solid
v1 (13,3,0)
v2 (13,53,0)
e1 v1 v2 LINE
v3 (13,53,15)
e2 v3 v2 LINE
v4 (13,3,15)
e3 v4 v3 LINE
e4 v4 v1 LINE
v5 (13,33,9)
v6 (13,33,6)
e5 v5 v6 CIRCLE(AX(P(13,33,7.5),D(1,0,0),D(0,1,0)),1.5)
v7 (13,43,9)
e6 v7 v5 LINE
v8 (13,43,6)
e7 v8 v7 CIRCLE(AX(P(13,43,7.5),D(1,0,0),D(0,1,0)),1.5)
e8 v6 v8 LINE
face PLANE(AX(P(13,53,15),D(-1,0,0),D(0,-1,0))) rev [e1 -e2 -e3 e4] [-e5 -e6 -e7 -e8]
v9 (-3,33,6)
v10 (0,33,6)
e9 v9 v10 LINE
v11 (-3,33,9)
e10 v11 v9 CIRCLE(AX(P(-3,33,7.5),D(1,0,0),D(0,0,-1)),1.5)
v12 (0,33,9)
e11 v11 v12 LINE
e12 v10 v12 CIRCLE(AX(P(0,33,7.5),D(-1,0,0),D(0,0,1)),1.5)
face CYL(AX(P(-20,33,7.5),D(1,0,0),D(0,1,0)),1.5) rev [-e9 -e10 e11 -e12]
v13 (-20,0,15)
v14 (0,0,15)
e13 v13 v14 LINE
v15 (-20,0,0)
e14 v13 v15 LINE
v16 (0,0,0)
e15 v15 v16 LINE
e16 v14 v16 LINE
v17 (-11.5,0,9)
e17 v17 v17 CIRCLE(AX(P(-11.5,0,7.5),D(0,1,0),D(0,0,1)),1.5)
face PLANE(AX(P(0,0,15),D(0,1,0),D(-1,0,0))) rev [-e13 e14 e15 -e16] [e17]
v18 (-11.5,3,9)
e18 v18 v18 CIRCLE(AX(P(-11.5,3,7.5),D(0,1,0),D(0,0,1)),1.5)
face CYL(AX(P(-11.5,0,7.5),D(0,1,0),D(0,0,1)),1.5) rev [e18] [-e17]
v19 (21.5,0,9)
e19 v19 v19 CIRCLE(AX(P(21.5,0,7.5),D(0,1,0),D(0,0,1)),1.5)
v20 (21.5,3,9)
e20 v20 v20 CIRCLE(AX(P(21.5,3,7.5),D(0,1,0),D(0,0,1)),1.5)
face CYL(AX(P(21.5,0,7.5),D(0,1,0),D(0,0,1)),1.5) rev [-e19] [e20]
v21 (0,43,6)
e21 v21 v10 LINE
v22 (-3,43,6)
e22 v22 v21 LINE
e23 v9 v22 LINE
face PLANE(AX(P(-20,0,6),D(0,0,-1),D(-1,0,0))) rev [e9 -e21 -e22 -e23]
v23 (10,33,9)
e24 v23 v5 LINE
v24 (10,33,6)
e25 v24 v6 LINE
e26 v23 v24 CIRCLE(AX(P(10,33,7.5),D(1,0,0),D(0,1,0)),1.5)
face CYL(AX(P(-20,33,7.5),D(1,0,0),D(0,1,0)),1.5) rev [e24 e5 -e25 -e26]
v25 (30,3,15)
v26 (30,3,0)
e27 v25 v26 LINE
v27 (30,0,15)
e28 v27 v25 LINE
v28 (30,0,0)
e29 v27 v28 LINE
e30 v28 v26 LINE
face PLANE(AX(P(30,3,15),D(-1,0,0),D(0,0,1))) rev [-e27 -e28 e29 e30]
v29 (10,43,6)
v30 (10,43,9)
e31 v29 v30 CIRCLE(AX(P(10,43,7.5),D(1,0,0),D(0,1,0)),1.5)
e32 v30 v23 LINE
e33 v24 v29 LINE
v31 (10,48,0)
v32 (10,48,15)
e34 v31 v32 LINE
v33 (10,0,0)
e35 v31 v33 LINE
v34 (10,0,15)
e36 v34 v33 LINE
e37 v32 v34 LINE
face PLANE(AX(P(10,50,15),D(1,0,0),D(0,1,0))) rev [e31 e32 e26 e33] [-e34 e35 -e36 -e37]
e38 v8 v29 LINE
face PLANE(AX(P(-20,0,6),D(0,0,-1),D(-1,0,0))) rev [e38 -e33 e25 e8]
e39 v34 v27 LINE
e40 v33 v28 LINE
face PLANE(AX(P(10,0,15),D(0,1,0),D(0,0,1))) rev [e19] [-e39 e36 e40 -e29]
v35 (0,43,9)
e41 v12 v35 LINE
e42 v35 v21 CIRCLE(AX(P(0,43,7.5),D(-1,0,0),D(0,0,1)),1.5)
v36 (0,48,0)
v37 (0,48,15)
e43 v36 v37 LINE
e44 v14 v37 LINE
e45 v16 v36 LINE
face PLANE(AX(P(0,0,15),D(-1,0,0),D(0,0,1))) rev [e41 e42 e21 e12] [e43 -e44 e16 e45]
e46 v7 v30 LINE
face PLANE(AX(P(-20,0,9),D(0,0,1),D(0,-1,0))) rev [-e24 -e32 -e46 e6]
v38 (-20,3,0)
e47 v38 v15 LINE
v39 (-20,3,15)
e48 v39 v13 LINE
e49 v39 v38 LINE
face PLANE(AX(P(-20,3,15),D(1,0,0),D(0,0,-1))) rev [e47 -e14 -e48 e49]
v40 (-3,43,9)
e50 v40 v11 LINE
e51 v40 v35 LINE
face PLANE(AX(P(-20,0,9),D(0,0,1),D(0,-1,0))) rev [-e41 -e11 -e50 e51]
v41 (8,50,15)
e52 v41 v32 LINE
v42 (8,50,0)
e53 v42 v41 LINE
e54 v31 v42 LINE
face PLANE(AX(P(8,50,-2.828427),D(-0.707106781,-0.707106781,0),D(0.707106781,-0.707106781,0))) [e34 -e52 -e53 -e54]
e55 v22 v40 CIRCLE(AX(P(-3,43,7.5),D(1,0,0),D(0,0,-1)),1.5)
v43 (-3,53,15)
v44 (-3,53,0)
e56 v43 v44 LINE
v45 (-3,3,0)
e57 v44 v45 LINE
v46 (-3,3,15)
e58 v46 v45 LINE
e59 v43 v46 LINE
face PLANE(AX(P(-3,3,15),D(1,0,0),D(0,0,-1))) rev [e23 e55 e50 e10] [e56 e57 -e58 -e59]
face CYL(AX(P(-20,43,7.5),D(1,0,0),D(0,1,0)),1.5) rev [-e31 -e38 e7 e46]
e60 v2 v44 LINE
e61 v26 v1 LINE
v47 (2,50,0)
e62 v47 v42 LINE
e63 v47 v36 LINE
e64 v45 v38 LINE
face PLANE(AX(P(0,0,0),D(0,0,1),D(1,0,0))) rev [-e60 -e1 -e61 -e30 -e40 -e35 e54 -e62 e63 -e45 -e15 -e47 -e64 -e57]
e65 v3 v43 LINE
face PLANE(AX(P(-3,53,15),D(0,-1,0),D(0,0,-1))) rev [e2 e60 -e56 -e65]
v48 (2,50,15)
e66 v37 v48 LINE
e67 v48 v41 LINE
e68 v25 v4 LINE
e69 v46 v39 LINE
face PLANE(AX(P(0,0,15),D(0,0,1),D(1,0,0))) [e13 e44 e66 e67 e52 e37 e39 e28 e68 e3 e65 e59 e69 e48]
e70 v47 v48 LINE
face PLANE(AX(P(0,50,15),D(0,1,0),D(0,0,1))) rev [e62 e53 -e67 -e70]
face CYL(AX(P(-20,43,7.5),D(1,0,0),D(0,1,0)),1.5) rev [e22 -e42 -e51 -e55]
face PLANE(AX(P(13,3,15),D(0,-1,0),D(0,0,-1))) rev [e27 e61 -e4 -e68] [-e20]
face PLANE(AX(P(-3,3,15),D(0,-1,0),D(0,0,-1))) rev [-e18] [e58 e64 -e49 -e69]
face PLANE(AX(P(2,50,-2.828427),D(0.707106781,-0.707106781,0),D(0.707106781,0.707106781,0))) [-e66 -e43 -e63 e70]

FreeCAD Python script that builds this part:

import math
import FreeCAD as App
import Part
import Sketcher
Q = App.Units.Quantity

doc = App.newDocument("Part")
body = doc.addObject("PartDesign::Body", "Body")

# Sketch on XY plane
sketch1 = doc.addObject("Sketcher::SketchObject", "Sketch")
body.addObject(sketch1)
sketch1.AttachmentSupport = (doc.XY_Plane, [""])
sketch1.MapMode = "FlatFace"
sketch1.addGeometry([
    Part.LineSegment(App.Vector(0, 0, 0), App.Vector(0, 50, 0)),  # 0
    Part.LineSegment(App.Vector(0, 50, 0), App.Vector(10, 50, 0)),  # 1
    Part.LineSegment(App.Vector(10, 50, 0), App.Vector(10, 0, 0)),  # 2
    Part.LineSegment(App.Vector(10, 0, 0), App.Vector(30, 0, 0)),  # 3
    Part.LineSegment(App.Vector(30, 0, 0), App.Vector(30, 3, 0)),  # 4
    Part.LineSegment(App.Vector(30, 3, 0), App.Vector(13, 3, 0)),  # 5
    Part.LineSegment(App.Vector(13, 3, 0), App.Vector(13, 53, 0)),  # 6
    Part.LineSegment(App.Vector(13, 53, 0), App.Vector(-3, 53, 0)),  # 7
    Part.LineSegment(App.Vector(-3, 53, 0), App.Vector(-3, 3, 0)),  # 8
    Part.LineSegment(App.Vector(-3, 3, 0), App.Vector(-20, 3, 0)),  # 9
    Part.LineSegment(App.Vector(-20, 3, 0), App.Vector(-20, 0, 0)),  # 10
    Part.LineSegment(App.Vector(-20, 0, 0), App.Vector(0, 0, 0)),  # 11
], False)
sketch1.addConstraint([
    Sketcher.Constraint("Coincident", 0, 2, 1, 1),
    Sketcher.Constraint("Coincident", 1, 2, 2, 1),
    Sketcher.Constraint("Coincident", 2, 2, 3, 1),
    Sketcher.Constraint("Coincident", 3, 2, 4, 1),
    Sketcher.Constraint("Coincident", 4, 2, 5, 1),
    Sketcher.Constraint("Coincident", 5, 2, 6, 1),
    Sketcher.Constraint("Coincident", 6, 2, 7, 1),
    Sketcher.Constraint("Coincident", 7, 2, 8, 1),
    Sketcher.Constraint("Coincident", 8, 2, 9, 1),
    Sketcher.Constraint("Coincident", 9, 2, 10, 1),
    Sketcher.Constraint("Coincident", 10, 2, 11, 1),
    Sketcher.Constraint("Coincident", 11, 2, 0, 1),
    Sketcher.Constraint("Vertical", 0),
    Sketcher.Constraint("Horizontal", 1),
    Sketcher.Constraint("Vertical", 2),
    Sketcher.Constraint("Horizontal", 3),
    Sketcher.Constraint("Vertical", 4),
    Sketcher.Constraint("Horizontal", 5),
    Sketcher.Constraint("Vertical", 6),
    Sketcher.Constraint("Horizontal", 7),
    Sketcher.Constraint("Vertical", 8),
    Sketcher.Constraint("Horizontal", 9),
    Sketcher.Constraint("Vertical", 10),
    Sketcher.Constraint("Horizontal", 11),
    Sketcher.Constraint("Coincident", 11, 2, -1, 1),
    Sketcher.Constraint("PointOnObject", 2, 2, -1),
    Sketcher.Constraint("Horizontal", 5, 2, 8, 2),
    Sketcher.Constraint("Equal", 5, 9),
    Sketcher.Constraint("Equal", 3, 11),
    Sketcher.Constraint("Equal", 2, 6),
    Sketcher.Constraint("DistanceX", 1, 1, 1, 2, Q("10 mm")),
    Sketcher.Constraint("DistanceX", 3, 1, 3, 2, Q("20 mm")),
    Sketcher.Constraint("DistanceX", 5, 2, 5, 1, Q("17 mm")),
    Sketcher.Constraint("DistanceY", 0, 1, 0, 2, Q("50 mm")),
    Sketcher.Constraint("DistanceY", 4, 1, 4, 2, Q("3 mm")),
])
pad1 = doc.addObject("PartDesign::Pad", "Pad")
body.addObject(pad1)
pad1.Profile = sketch1
pad1.Length = 15

# Sketch on YZ plane
sketch2 = doc.addObject("Sketcher::SketchObject", "Sketch001")
body.addObject(sketch2)
sketch2.AttachmentSupport = (doc.YZ_Plane, [""])
sketch2.MapMode = "FlatFace"
sketch2.AttachmentOffset = App.Placement(App.Vector(0, 0, 13), App.Rotation())
sketch2.addGeometry(Part.Circle(App.Vector(43, 7.5, 0), App.Vector(0, 0, 1), 1.5), False)
sketch2.addConstraint([
    Sketcher.Constraint("Diameter", 0, Q("3 mm")),
    Sketcher.Constraint("DistanceX", -1, 1, 0, 3, Q("43 mm")),
    Sketcher.Constraint("DistanceY", -1, 1, 0, 3, Q("7.5 mm")),
])
pocket1 = doc.addObject("PartDesign::Pocket", "Pocket")
body.addObject(pocket1)
pocket1.Profile = sketch2
pocket1.Type = "ThroughAll"

# Sketch on YZ plane
sketch3 = doc.addObject("Sketcher::SketchObject", "Sketch002")
body.addObject(sketch3)
sketch3.AttachmentSupport = (doc.YZ_Plane, [""])
sketch3.MapMode = "FlatFace"
sketch3.AttachmentOffset = App.Placement(App.Vector(0, 0, 13), App.Rotation())
sketch3.addGeometry([
    Part.LineSegment(App.Vector(43, 9, 0), App.Vector(33, 9, 0)),
    Part.ArcOfCircle(Part.Circle(App.Vector(33, 7.5, 0), App.Vector(0, 0, 1), 1.5), math.radians(90), math.radians(270)),
    Part.LineSegment(App.Vector(33, 6, 0), App.Vector(43, 6, 0)),
    Part.ArcOfCircle(Part.Circle(App.Vector(43, 7.5, 0), App.Vector(0, 0, 1), 1.5), math.radians(90), math.radians(270)),
], False)
sketch3.addConstraint([
    Sketcher.Constraint("Tangent", 0, 2, 1, 1),
    Sketcher.Constraint("Tangent", 1, 2, 2, 1),
    Sketcher.Constraint("Tangent", 2, 2, 3, 2),
    Sketcher.Constraint("Tangent", 3, 1, 0, 1),
    Sketcher.Constraint("Horizontal", 0),
    Sketcher.Constraint("Horizontal", 2),
    Sketcher.Constraint("Radius", 1, Q("1.5 mm")),
    Sketcher.Constraint("DistanceX", 0, 2, 0, 1, Q("10 mm")),
    Sketcher.Constraint("DistanceX", -1, 1, 1, 3, Q("33 mm")),
    Sketcher.Constraint("DistanceY", -1, 1, 0, 2, Q("9 mm")),
])
pocket2 = doc.addObject("PartDesign::Pocket", "Pocket001")
body.addObject(pocket2)
pocket2.Profile = sketch3
pocket2.Type = "ThroughAll"

# Sketch on XZ plane
sketch4 = doc.addObject("Sketcher::SketchObject", "Sketch003")
body.addObject(sketch4)
sketch4.AttachmentSupport = (doc.XZ_Plane, [""])
sketch4.MapMode = "FlatFace"
sketch4.AttachmentOffset = App.Placement(App.Vector(0, 0, -3), App.Rotation())
sketch4.addGeometry([
    Part.Circle(App.Vector(-11.5, 7.5, 0), App.Vector(0, 0, 1), 1.5),
    Part.Circle(App.Vector(21.5, 7.5, 0), App.Vector(0, 0, 1), 1.5),
], False)
sketch4.addConstraint([
    Sketcher.Constraint("Equal", 0, 1),
    Sketcher.Constraint("Horizontal", 0, 3, 1, 3),
    Sketcher.Constraint("Diameter", 0, Q("3 mm")),
    Sketcher.Constraint("DistanceX", 0, 3, 1, 3, Q("33 mm")),
    Sketcher.Constraint("DistanceX", 0, 3, -1, 1, Q("11.5 mm")),
    Sketcher.Constraint("DistanceY", -1, 1, 0, 3, Q("7.5 mm")),
])
pocket3 = doc.addObject("PartDesign::Pocket", "Pocket002")
body.addObject(pocket3)
pocket3.Profile = sketch4
pocket3.Type = "ThroughAll"
pocket3.Reversed = True

# Sketch on XY plane
sketch5 = doc.addObject("Sketcher::SketchObject", "Sketch004")
body.addObject(sketch5)
sketch5.AttachmentSupport = (doc.XY_Plane, [""])
sketch5.MapMode = "FlatFace"
sketch5.AttachmentOffset = App.Placement(App.Vector(0, 0, 15), App.Rotation())
sketch5.addGeometry([
    Part.LineSegment(App.Vector(2, 50, 0), App.Vector(0, 50, 0)),  # 0
    Part.LineSegment(App.Vector(0, 50, 0), App.Vector(0, 48, 0)),  # 1
    Part.LineSegment(App.Vector(0, 48, 0), App.Vector(2, 50, 0)),  # 2
    Part.LineSegment(App.Vector(10, 50, 0), App.Vector(8, 50, 0)),  # 3
    Part.LineSegment(App.Vector(8, 50, 0), App.Vector(10, 48, 0)),  # 4
    Part.LineSegment(App.Vector(10, 48, 0), App.Vector(10, 50, 0)),  # 5
], False)
sketch5.addConstraint([
    Sketcher.Constraint("Coincident", 0, 2, 1, 1),
    Sketcher.Constraint("Coincident", 1, 2, 2, 1),
    Sketcher.Constraint("Coincident", 2, 2, 0, 1),
    Sketcher.Constraint("Coincident", 3, 2, 4, 1),
    Sketcher.Constraint("Coincident", 4, 2, 5, 1),
    Sketcher.Constraint("Coincident", 5, 2, 3, 1),
    Sketcher.Constraint("Horizontal", 0),
    Sketcher.Constraint("Vertical", 1),
    Sketcher.Constraint("Horizontal", 3),
    Sketcher.Constraint("Vertical", 5),
    Sketcher.Constraint("PointOnObject", 0, 2, -2),
    Sketcher.Constraint("Perpendicular", 2, 4),
    Sketcher.Constraint("Horizontal", 2, 2, 3, 2),
    Sketcher.Constraint("Horizontal", 1, 2, 4, 2),
    Sketcher.Constraint("Equal", 0, 3),
    Sketcher.Constraint("DistanceX", 0, 2, 0, 1, Q("2 mm")),
    Sketcher.Constraint("DistanceY", -1, 1, 0, 2, Q("50 mm")),
    Sketcher.Constraint("DistanceX", -1, 1, 3, 2, Q("8 mm")),
])
pad2 = doc.addObject("PartDesign::Pad", "Pad001")
body.addObject(pad2)
pad2.Profile = sketch5
pad2.Length = 15
pad2.Reversed = True

doc.recompute()
